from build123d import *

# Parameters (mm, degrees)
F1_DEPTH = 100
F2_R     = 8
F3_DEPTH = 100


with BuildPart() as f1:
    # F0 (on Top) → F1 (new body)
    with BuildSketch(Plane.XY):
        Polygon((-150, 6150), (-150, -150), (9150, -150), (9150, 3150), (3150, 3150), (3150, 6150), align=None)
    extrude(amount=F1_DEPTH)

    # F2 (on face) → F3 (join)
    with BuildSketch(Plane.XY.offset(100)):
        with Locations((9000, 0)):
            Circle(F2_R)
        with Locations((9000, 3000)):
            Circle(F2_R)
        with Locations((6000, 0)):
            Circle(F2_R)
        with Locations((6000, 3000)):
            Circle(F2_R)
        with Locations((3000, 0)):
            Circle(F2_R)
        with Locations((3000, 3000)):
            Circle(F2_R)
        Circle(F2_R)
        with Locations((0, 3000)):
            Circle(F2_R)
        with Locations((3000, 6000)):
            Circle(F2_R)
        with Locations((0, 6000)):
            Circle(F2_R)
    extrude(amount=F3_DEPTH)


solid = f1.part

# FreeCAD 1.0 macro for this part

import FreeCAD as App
import Part
import Sketcher

V = App.Vector

doc = App.newDocument("Part")
body = doc.addObject("PartDesign::Body", "Body")

sketch1 = body.newObject("Sketcher::SketchObject", "Sketch")
sketch1.AttachmentSupport = (doc.getObject("XY_Plane"), [""])
sketch1.MapMode = "FlatFace"
sketch1.addGeometry([
    Part.LineSegment(V(-150, 6150, 0), V(-150, -150, 0)),
    Part.LineSegment(V(-150, -150, 0), V(9150, -150, 0)),
    Part.LineSegment(V(9150, -150, 0), V(9150, 3150, 0)),
    Part.LineSegment(V(9150, 3150, 0), V(3150, 3150, 0)),
    Part.LineSegment(V(3150, 3150, 0), V(3150, 6150, 0)),
    Part.LineSegment(V(3150, 6150, 0), V(-150, 6150, 0)),
], False)
sketch1.addConstraint([
    Sketcher.Constraint("Coincident", 0, 2, 1, 1),
    Sketcher.Constraint("Coincident", 1, 2, 2, 1),
    Sketcher.Constraint("Coincident", 2, 2, 3, 1),
    Sketcher.Constraint("Coincident", 3, 2, 4, 1),
    Sketcher.Constraint("Coincident", 4, 2, 5, 1),
    Sketcher.Constraint("Coincident", 5, 2, 0, 1),
    Sketcher.Constraint("Vertical", 0),
    Sketcher.Constraint("Horizontal", 1),
    Sketcher.Constraint("Vertical", 2),
    Sketcher.Constraint("Horizontal", 3),
    Sketcher.Constraint("Vertical", 4),
    Sketcher.Constraint("Horizontal", 5),
    Sketcher.Constraint("Equal", 5, 2),
    Sketcher.Constraint("DistanceX", 1, 1, 1, 2, 9300.0),
    Sketcher.Constraint("DistanceX", 3, 2, 3, 1, 6000.0),
    Sketcher.Constraint("DistanceY", 0, 2, 0, 1, 6300.0),
    Sketcher.Constraint("DistanceX", 0, 2, -1, 1, 150.0),
    Sketcher.Constraint("DistanceY", 0, 2, -1, 1, 150.0),
])
pad1 = body.newObject("PartDesign::Pad", "Pad")
pad1.Profile = sketch1
pad1.Length = 100

sketch2 = body.newObject("Sketcher::SketchObject", "Sketch001")
sketch2.AttachmentSupport = (doc.getObject("XY_Plane"), [""])
sketch2.MapMode = "FlatFace"
sketch2.AttachmentOffset = App.Placement(V(0, 0, 100), App.Rotation())
sketch2.addGeometry([
    Part.Circle(V(9000, 0, 0), V(0, 0, 1), 8),
    Part.Circle(V(9000, 3000, 0), V(0, 0, 1), 8),
    Part.Circle(V(6000, 0, 0), V(0, 0, 1), 8),
    Part.Circle(V(6000, 3000, 0), V(0, 0, 1), 8),
    Part.Circle(V(3000, 0, 0), V(0, 0, 1), 8),
    Part.Circle(V(3000, 3000, 0), V(0, 0, 1), 8),
    Part.Circle(V(0, 0, 0), V(0, 0, 1), 8),
    Part.Circle(V(0, 3000, 0), V(0, 0, 1), 8),
    Part.Circle(V(3000, 6000, 0), V(0, 0, 1), 8),
    Part.Circle(V(0, 6000, 0), V(0, 0, 1), 8),
], False)
sketch2.addConstraint([
    Sketcher.Constraint("Coincident", 6, 3, -1, 1),
    Sketcher.Constraint("Equal", 0, 1),
    Sketcher.Constraint("Equal", 1, 2),
    Sketcher.Constraint("Equal", 2, 3),
    Sketcher.Constraint("Equal", 3, 4),
    Sketcher.Constraint("Equal", 4, 5),
    Sketcher.Constraint("Equal", 5, 6),
    Sketcher.Constraint("Equal", 6, 7),
    Sketcher.Constraint("Equal", 7, 8),
    Sketcher.Constraint("Equal", 8, 9),
    Sketcher.Constraint("PointOnObject", 0, 3, -1),
    Sketcher.Constraint("PointOnObject", 2, 3, -1),
    Sketcher.Constraint("PointOnObject", 4, 3, -1),
    Sketcher.Constraint("PointOnObject", 7, 3, -2),
    Sketcher.Constraint("PointOnObject", 9, 3, -2),
    Sketcher.Constraint("Horizontal", 1, 3, 3, 3),
    Sketcher.Constraint("Horizontal", 3, 3, 5, 3),
    Sketcher.Constraint("Horizontal", 5, 3, 7, 3),
    Sketcher.Constraint("Horizontal", 8, 3, 9, 3),
    Sketcher.Constraint("Vertical", 0, 3, 1, 3),
    Sketcher.Constraint("Vertical", 2, 3, 3, 3),
    Sketcher.Constraint("Vertical", 4, 3, 5, 3),
    Sketcher.Constraint("Vertical", 5, 3, 8, 3),
    Sketcher.Constraint("Diameter", 0, 16.0),
    Sketcher.Constraint("DistanceX", -1, 1, 0, 3, 9000.0),
    Sketcher.Constraint("DistanceY", -1, 1, 1, 3, 3000.0),
    Sketcher.Constraint("DistanceX", -1, 1, 2, 3, 6000.0),
    Sketcher.Constraint("DistanceX", -1, 1, 4, 3, 3000.0),
    Sketcher.Constraint("DistanceY", -1, 1, 8, 3, 6000.0),
])
pad2 = body.newObject("PartDesign::Pad", "Pad001")
pad2.Profile = sketch2
pad2.Length = 100

doc.recompute()
